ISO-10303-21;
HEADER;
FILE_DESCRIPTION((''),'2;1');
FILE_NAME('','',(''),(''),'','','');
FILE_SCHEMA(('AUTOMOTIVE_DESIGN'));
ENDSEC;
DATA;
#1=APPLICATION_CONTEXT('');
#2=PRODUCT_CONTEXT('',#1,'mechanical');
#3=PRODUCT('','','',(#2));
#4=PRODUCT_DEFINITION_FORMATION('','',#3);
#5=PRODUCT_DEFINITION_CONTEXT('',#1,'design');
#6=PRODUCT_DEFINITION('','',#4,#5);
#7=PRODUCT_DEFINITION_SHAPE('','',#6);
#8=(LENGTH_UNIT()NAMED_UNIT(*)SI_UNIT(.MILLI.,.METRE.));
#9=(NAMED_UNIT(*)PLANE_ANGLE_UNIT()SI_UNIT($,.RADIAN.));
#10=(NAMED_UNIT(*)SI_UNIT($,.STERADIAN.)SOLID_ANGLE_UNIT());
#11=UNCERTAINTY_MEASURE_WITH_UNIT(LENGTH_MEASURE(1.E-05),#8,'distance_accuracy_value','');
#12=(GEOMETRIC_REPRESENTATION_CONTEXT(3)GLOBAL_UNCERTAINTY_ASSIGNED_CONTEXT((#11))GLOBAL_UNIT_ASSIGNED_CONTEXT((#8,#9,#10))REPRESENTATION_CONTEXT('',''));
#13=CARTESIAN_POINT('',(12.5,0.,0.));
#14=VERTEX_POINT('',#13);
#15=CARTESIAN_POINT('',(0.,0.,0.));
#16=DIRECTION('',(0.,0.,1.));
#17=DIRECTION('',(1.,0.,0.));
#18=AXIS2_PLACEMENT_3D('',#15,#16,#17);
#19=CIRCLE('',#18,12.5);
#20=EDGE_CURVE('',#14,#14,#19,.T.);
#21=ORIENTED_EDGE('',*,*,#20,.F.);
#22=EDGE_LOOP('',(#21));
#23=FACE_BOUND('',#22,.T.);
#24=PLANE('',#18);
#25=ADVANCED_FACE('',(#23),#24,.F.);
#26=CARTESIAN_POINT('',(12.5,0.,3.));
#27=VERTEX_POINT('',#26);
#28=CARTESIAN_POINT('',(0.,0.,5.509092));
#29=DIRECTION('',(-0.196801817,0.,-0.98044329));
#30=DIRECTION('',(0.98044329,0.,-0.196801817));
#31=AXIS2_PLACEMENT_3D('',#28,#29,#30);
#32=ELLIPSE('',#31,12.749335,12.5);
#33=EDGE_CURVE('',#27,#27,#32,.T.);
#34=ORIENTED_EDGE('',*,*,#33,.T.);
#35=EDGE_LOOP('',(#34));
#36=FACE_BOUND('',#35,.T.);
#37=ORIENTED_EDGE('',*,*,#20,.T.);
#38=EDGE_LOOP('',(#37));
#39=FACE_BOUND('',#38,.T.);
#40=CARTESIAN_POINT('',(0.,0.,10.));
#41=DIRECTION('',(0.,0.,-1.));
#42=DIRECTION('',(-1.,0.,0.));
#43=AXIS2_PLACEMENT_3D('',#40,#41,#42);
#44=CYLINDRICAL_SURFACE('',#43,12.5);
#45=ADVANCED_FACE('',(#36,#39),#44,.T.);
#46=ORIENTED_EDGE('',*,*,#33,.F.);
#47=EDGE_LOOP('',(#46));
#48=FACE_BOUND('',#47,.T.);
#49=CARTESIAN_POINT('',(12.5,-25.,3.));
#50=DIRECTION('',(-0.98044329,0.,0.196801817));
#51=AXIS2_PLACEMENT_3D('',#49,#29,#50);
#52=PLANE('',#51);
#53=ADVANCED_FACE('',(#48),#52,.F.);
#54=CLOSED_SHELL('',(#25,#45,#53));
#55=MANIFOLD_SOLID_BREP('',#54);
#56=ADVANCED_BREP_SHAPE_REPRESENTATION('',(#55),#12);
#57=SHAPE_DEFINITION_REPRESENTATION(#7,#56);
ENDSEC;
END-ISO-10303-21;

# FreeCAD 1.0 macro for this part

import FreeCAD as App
import Part
import Sketcher
Q = App.Units.Quantity


def add_polygon(sketch, points):
    """Adds a closed chain of lines whose ends are joined by coincident constraints."""
    first, n = sketch.GeometryCount, len(points)
    for a, b in zip(points, points[1:] + points[:1]):
        sketch.addGeometry(Part.LineSegment(App.Vector(*a, 0), App.Vector(*b, 0)), False)
    for i in range(n):
        sketch.addConstraint(Sketcher.Constraint("Coincident", first + i, 2, first + (i + 1) % n, 1))

doc = App.newDocument("Part")
body = doc.addObject("PartDesign::Body", "Body")

# Sketch on XY plane
sketch1 = body.newObject("Sketcher::SketchObject", "Sketch")
sketch1.AttachmentSupport = (doc.getObject("XY_Plane"), [""])
sketch1.MapMode = "FlatFace"
sketch1.addGeometry(Part.Circle(App.Vector(0, 0, 0), App.Vector(0, 0, 1), 12), False)
sketch1.addConstraint([
    Sketcher.Constraint("Coincident", 0, 3, -1, 1),
    Sketcher.Constraint("Diameter", 0, 25.0),
])
pad1 = body.newObject("PartDesign::Pad", "Pad")
pad1.Profile = sketch1
pad1.Length = 10

# Sketch on XZ plane
sketch2 = body.newObject("Sketcher::SketchObject", "Sketch001")
sketch2.AttachmentSupport = (doc.getObject("XZ_Plane"), [""])
sketch2.MapMode = "FlatFace"
add_polygon(sketch2, [(12, 3), (-16, 9), (-16, 20), (18, 20), (18, 3)])  # lines 0-4
sketch2.addConstraint([
    Sketcher.Constraint("Vertical", 1),
    Sketcher.Constraint("Horizontal", 2),
    Sketcher.Constraint("Vertical", 3),
    Sketcher.Constraint("Horizontal", 4),
    Sketcher.Constraint("DistanceY", -1, 1, 3, 2, 3.0),
    Sketcher.Constraint("DistanceX", -1, 1, 4, 2, 12.5),
    Sketcher.Constraint("Angle", 0, Q("168.65 deg")),
    Sketcher.Constraint("DistanceX", 2, 1, 2, 2, 34.408831),
    Sketcher.Constraint("DistanceX", 4, 2, 4, 1, 5.836611),
    Sketcher.Constraint("DistanceY", 3, 2, 3, 1, 16.67306),
])
pocket1 = body.newObject("PartDesign::Pocket", "Pocket")
pocket1.Profile = sketch2
pocket1.Length = 50
pocket1.Midplane = True

doc.recompute()
